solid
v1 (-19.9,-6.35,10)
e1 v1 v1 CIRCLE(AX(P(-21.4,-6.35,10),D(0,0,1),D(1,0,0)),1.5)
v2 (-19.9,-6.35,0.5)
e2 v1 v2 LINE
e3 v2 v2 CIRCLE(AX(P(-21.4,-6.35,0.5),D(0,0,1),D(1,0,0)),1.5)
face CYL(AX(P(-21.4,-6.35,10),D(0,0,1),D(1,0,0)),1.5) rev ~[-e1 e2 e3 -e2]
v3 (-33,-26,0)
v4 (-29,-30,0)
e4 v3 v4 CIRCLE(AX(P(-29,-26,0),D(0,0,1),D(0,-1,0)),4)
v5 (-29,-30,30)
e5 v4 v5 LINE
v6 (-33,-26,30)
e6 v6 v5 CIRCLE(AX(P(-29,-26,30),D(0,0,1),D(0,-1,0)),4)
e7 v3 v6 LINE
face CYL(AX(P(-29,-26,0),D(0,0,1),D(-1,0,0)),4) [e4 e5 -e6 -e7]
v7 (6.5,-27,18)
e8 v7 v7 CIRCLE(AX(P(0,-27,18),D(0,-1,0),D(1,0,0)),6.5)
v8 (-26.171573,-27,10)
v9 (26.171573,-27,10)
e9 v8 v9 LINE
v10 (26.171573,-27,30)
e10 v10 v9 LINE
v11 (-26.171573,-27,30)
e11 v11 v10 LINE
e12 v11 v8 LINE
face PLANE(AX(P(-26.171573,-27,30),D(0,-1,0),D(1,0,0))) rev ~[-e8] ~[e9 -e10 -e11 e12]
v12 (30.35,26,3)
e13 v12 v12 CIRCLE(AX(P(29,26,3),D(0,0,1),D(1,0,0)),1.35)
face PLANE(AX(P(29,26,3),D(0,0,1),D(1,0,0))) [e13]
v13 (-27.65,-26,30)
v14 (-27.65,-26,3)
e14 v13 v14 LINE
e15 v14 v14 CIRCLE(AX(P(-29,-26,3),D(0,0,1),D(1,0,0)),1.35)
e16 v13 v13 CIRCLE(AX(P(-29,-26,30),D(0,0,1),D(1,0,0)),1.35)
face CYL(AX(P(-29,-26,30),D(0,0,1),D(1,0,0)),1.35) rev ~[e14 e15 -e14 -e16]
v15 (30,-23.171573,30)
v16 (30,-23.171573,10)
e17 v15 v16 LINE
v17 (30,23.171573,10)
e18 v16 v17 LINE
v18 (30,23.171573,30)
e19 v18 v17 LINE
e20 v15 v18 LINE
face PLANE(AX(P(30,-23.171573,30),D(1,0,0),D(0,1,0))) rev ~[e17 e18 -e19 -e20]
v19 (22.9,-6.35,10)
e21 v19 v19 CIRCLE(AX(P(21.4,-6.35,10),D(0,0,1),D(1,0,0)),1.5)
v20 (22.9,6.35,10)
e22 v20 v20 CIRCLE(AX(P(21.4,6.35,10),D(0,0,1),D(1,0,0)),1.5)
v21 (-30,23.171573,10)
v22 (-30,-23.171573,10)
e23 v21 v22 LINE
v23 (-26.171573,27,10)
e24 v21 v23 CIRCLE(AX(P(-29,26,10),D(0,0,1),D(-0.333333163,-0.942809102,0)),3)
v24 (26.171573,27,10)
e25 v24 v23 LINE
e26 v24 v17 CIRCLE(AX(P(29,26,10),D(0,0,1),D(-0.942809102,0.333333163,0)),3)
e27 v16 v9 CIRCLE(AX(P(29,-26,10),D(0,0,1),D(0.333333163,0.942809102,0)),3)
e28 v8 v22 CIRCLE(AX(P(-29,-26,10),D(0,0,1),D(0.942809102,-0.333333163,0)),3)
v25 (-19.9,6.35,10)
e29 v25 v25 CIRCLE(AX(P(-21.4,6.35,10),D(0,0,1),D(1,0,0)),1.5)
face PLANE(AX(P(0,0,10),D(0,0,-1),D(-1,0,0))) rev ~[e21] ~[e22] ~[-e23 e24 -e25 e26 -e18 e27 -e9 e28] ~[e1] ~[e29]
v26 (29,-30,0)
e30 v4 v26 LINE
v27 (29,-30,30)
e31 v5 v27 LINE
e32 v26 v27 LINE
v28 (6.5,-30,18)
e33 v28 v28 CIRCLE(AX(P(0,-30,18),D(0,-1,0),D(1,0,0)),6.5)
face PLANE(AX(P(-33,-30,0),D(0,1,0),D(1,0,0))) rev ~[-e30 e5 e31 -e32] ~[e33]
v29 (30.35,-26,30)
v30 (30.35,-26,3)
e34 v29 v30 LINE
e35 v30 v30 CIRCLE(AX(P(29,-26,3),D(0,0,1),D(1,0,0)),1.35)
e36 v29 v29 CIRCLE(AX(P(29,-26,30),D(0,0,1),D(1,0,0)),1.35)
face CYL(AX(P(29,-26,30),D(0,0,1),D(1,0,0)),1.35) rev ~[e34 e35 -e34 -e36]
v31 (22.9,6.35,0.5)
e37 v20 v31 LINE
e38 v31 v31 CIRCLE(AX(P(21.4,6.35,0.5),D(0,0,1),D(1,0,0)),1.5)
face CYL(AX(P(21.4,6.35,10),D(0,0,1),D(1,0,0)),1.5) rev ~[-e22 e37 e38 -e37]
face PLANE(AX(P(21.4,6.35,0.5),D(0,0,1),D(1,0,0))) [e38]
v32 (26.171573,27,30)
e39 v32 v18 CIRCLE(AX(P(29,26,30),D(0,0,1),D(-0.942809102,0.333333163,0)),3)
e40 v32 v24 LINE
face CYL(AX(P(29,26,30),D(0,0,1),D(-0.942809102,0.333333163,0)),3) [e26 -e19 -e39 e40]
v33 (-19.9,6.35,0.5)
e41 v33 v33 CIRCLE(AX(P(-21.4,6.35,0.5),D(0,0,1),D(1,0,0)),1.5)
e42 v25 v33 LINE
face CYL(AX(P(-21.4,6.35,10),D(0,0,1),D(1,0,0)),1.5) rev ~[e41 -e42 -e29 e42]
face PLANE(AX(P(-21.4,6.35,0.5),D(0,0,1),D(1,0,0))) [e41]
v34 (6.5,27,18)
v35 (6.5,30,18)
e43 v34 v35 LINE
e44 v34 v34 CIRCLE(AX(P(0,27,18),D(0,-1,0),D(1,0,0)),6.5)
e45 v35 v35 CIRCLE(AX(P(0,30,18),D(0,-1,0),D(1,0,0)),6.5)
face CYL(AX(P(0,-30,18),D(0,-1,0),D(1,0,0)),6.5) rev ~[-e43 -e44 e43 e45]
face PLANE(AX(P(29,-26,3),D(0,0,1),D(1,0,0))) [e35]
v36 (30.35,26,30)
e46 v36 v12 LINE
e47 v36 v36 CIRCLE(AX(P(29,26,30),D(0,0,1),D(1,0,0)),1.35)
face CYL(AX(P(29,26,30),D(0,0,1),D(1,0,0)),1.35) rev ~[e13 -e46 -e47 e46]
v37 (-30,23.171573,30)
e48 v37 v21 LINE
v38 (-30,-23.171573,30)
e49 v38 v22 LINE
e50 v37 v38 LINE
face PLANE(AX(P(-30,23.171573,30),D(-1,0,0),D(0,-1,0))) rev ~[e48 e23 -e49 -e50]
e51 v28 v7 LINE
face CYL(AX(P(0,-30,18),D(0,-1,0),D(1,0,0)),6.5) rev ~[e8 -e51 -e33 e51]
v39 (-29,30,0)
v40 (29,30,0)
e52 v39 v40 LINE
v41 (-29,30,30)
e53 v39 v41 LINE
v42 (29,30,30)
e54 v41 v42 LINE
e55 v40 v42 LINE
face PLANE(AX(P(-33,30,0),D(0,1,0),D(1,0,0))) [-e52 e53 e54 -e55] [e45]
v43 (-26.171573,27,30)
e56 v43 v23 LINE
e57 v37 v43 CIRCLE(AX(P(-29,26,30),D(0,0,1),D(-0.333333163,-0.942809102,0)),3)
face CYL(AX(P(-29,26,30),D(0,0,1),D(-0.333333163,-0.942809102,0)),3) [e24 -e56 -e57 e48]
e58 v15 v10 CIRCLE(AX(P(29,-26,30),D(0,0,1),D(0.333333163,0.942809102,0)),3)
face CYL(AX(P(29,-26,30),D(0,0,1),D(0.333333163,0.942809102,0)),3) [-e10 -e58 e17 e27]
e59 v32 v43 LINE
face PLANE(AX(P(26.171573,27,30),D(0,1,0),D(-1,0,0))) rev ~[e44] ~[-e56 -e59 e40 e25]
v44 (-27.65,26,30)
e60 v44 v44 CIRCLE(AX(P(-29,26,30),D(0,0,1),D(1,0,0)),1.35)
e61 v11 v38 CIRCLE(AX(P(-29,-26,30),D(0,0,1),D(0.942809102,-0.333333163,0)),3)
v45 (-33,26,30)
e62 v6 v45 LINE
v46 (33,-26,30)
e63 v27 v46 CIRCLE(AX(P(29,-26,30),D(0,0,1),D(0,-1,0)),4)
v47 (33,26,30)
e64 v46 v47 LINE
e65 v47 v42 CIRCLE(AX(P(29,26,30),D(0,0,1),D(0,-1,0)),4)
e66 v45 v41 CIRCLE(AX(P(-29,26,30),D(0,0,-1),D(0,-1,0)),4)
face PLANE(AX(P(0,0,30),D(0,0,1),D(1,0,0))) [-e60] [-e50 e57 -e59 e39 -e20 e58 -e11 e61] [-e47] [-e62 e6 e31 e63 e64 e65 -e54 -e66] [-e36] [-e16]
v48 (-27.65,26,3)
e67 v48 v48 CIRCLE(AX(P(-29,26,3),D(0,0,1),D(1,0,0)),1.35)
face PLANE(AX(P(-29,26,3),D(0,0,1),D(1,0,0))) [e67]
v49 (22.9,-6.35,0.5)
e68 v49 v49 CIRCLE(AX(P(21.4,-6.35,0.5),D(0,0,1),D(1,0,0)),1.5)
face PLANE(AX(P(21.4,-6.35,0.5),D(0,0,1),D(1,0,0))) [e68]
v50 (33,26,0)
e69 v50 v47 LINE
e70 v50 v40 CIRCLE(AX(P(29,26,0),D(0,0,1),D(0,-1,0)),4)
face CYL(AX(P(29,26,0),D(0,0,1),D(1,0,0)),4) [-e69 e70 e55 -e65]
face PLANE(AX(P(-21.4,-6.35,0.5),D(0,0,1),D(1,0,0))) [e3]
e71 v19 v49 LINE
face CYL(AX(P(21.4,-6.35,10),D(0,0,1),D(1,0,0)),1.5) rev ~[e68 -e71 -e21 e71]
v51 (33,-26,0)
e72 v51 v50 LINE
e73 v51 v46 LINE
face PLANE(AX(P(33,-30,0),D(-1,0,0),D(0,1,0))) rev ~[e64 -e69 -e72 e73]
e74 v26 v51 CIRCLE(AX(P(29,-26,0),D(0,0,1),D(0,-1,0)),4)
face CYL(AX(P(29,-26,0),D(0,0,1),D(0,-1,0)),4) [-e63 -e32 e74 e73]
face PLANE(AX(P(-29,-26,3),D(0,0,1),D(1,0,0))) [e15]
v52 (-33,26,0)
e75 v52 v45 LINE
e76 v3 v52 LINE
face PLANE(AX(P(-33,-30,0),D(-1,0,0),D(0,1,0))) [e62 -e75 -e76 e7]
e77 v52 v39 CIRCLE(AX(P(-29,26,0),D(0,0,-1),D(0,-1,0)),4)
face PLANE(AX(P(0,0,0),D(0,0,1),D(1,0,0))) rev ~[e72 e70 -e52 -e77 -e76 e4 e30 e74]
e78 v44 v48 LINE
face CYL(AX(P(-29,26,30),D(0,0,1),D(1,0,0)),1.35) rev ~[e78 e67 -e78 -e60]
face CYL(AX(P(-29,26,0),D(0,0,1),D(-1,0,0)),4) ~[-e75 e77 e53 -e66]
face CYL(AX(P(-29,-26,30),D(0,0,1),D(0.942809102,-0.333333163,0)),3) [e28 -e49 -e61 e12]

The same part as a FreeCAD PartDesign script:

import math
import FreeCAD as App
import Part
import Sketcher

V = App.Vector


def edges_at(feature, points):
    """Names of the edges that pass closest to the given points."""
    edges = feature.Shape.Edges
    near = lambda p: min(range(len(edges)), key=lambda i: edges[i].distToShape(Part.Vertex(*p))[0])
    return sorted({f"Edge{near(p) + 1}" for p in points})


def add_polygon(sketch, points):
    """Adds a closed chain of lines whose ends are joined by coincident constraints."""
    first, n = sketch.GeometryCount, len(points)
    for a, b in zip(points, points[1:] + points[:1]):
        sketch.addGeometry(Part.LineSegment(App.Vector(*a, 0), App.Vector(*b, 0)), False)
    for i in range(n):
        sketch.addConstraint(Sketcher.Constraint("Coincident", first + i, 2, first + (i + 1) % n, 1))

doc = App.newDocument("Part")
body = doc.addObject("PartDesign::Body", "Body")

sketch1 = body.newObject("Sketcher::SketchObject", "Sketch")
sketch1.AttachmentSupport = (doc.getObject("XY_Plane"), [""])
sketch1.MapMode = "FlatFace"
add_polygon(sketch1, [(-33, 30), (-33, -30), (33, -30), (33, 30)])
sketch1.addConstraint(Sketcher.Constraint("Vertical", 0))
sketch1.addConstraint(Sketcher.Constraint("Horizontal", 1))
sketch1.addConstraint(Sketcher.Constraint("Vertical", 2))
sketch1.addConstraint(Sketcher.Constraint("Horizontal", 3))
sketch1.addConstraint(Sketcher.Constraint("Symmetric", 0, 2, 2, 2, -1, 1))
sketch1.addConstraint(Sketcher.Constraint("DistanceX", 1, 1, 1, 2, 66.0))
sketch1.addConstraint(Sketcher.Constraint("DistanceY", 0, 2, 0, 1, 60.0))
pad1 = body.newObject("PartDesign::Pad", "Pad")
pad1.Profile = sketch1
pad1.Length = 30
doc.recompute()

fillet = body.newObject("PartDesign::Fillet", "Fillet")
fillet.Base = (pad1, edges_at(pad1, [
    (-33, -30, 15),
    (33, -30, 15),
    (33, 30, 15),
    (-33, 30, 15),
]))
fillet.Radius = 4

sketch2 = body.newObject("Sketcher::SketchObject", "Sketch001")
sketch2.AttachmentSupport = (doc.getObject("XY_Plane"), [""])
sketch2.MapMode = "FlatFace"
sketch2.AttachmentOffset = App.Placement(V(0, 0, 30), App.Rotation())
sketch2.addGeometry(Part.Circle(V(-29, 26, 0), V(0, 0, 1), 1.4), False)
sketch2.addGeometry(Part.Circle(V(29, 26, 0), V(0, 0, 1), 1.4), False)
sketch2.addGeometry(Part.Circle(V(29, -26, 0), V(0, 0, 1), 1.4), False)
sketch2.addGeometry(Part.Circle(V(-29, -26, 0), V(0, 0, 1), 1.4), False)
sketch2.addConstraint(Sketcher.Constraint("Equal", 0, 1))
sketch2.addConstraint(Sketcher.Constraint("Equal", 1, 2))
sketch2.addConstraint(Sketcher.Constraint("Equal", 2, 3))
sketch2.addConstraint(Sketcher.Constraint("Symmetric", 0, 3, 2, 3, -1, 1))
sketch2.addConstraint(Sketcher.Constraint("Symmetric", 1, 3, 3, 3, -1, 1))
sketch2.addConstraint(Sketcher.Constraint("Symmetric", 0, 3, 1, 3, -2))
sketch2.addConstraint(Sketcher.Constraint("Diameter", 0, 2.7))
sketch2.addConstraint(Sketcher.Constraint("DistanceX", 0, 3, -1, 1, 29.0))
sketch2.addConstraint(Sketcher.Constraint("DistanceY", -1, 1, 0, 3, 26.0))
pocket1 = body.newObject("PartDesign::Pocket", "Pocket")
pocket1.Profile = sketch2
pocket1.Length = 27

sketch3 = body.newObject("Sketcher::SketchObject", "Sketch002")
sketch3.AttachmentSupport = (doc.getObject("XY_Plane"), [""])
sketch3.MapMode = "FlatFace"
sketch3.AttachmentOffset = App.Placement(V(0, 0, 30), App.Rotation())
sketch3.addGeometry(Part.ArcOfCircle(Part.Circle(V(-29, 26, 0), V(0, 0, 1), 3), math.radians(-109), math.radians(19)), False)
sketch3.addGeometry(Part.LineSegment(V(-30, 23.2, 0), V(-30, -23.2, 0)), False)
sketch3.addGeometry(Part.ArcOfCircle(Part.Circle(V(-29, -26, 0), V(0, 0, 1), 3), math.radians(-19), math.radians(109)), False)
sketch3.addGeometry(Part.LineSegment(V(-26.2, -27, 0), V(26.2, -27, 0)), False)
sketch3.addGeometry(Part.ArcOfCircle(Part.Circle(V(29, -26, 0), V(0, 0, 1), 3), math.radians(71), math.radians(199)), False)
sketch3.addGeometry(Part.LineSegment(V(30, -23.2, 0), V(30, 23.2, 0)), False)
sketch3.addGeometry(Part.ArcOfCircle(Part.Circle(V(29, 26, 0), V(0, 0, 1), 3), math.radians(161), math.radians(289)), False)
sketch3.addGeometry(Part.LineSegment(V(26.2, 27, 0), V(-26.2, 27, 0)), False)
sketch3.addConstraint(Sketcher.Constraint("Coincident", 0, 1, 1, 1))
sketch3.addConstraint(Sketcher.Constraint("Coincident", 1, 2, 2, 2))
sketch3.addConstraint(Sketcher.Constraint("Coincident", 2, 1, 3, 1))
sketch3.addConstraint(Sketcher.Constraint("Coincident", 3, 2, 4, 2))
sketch3.addConstraint(Sketcher.Constraint("Coincident", 4, 1, 5, 1))
sketch3.addConstraint(Sketcher.Constraint("Coincident", 5, 2, 6, 2))
sketch3.addConstraint(Sketcher.Constraint("Coincident", 6, 1, 7, 1))
sketch3.addConstraint(Sketcher.Constraint("Coincident", 7, 2, 0, 2))
sketch3.addConstraint(Sketcher.Constraint("Vertical", 1))
sketch3.addConstraint(Sketcher.Constraint("Horizontal", 3))
sketch3.addConstraint(Sketcher.Constraint("Vertical", 5))
sketch3.addConstraint(Sketcher.Constraint("Horizontal", 7))
sketch3.addConstraint(Sketcher.Constraint("Equal", 0, 2))
sketch3.addConstraint(Sketcher.Constraint("Equal", 2, 4))
sketch3.addConstraint(Sketcher.Constraint("Equal", 4, 6))
sketch3.addConstraint(Sketcher.Constraint("Symmetric", 0, 3, 4, 3, -1, 1))
sketch3.addConstraint(Sketcher.Constraint("Symmetric", 2, 3, 6, 3, -1, 1))
sketch3.addConstraint(Sketcher.Constraint("Symmetric", 2, 3, 4, 3, -2))
sketch3.addConstraint(Sketcher.Constraint("Horizontal", 1, 2, 4, 1))
sketch3.addConstraint(Sketcher.Constraint("Vertical", 3, 2, 6, 1))
sketch3.addConstraint(Sketcher.Constraint("Radius", 0, 3.0))
sketch3.addConstraint(Sketcher.Constraint("DistanceX", 0, 3, -1, 1, 29.0))
sketch3.addConstraint(Sketcher.Constraint("DistanceY", -1, 1, 0, 3, 26.0))
sketch3.addConstraint(Sketcher.Constraint("DistanceX", 0, 1, -1, 1, 30.0))
sketch3.addConstraint(Sketcher.Constraint("DistanceY", 2, 1, -1, 1, 27.0))
pocket2 = body.newObject("PartDesign::Pocket", "Pocket001")
pocket2.Profile = sketch3
pocket2.Length = 20

sketch4 = body.newObject("Sketcher::SketchObject", "Sketch003")
sketch4.AttachmentSupport = (doc.getObject("XY_Plane"), [""])
sketch4.MapMode = "FlatFace"
sketch4.AttachmentOffset = App.Placement(V(0, 0, 10), App.Rotation())
sketch4.addGeometry(Part.Circle(V(-21.4, 6.3, 0), V(0, 0, 1), 1.5), False)
sketch4.addGeometry(Part.Circle(V(21.4, 6.3, 0), V(0, 0, 1), 1.5), False)
sketch4.addGeometry(Part.Circle(V(21.4, -6.3, 0), V(0, 0, 1), 1.5), False)
sketch4.addGeometry(Part.Circle(V(-21.4, -6.3, 0), V(0, 0, 1), 1.5), False)
sketch4.addConstraint(Sketcher.Constraint("Equal", 0, 1))
sketch4.addConstraint(Sketcher.Constraint("Equal", 1, 2))
sketch4.addConstraint(Sketcher.Constraint("Equal", 2, 3))
sketch4.addConstraint(Sketcher.Constraint("Symmetric", 0, 3, 2, 3, -1, 1))
sketch4.addConstraint(Sketcher.Constraint("Symmetric", 1, 3, 3, 3, -1, 1))
sketch4.addConstraint(Sketcher.Constraint("Symmetric", 0, 3, 1, 3, -2))
sketch4.addConstraint(Sketcher.Constraint("Diameter", 0, 3.0))
sketch4.addConstraint(Sketcher.Constraint("DistanceX", 0, 3, -1, 1, 21.4))
sketch4.addConstraint(Sketcher.Constraint("DistanceY", 2, 3, 1, 3, 12.7))
pocket3 = body.newObject("PartDesign::Pocket", "Pocket002")
pocket3.Profile = sketch4
pocket3.Length = 9.5

sketch5 = body.newObject("Sketcher::SketchObject", "Sketch004")
sketch5.AttachmentSupport = (doc.getObject("XZ_Plane"), [""])
sketch5.MapMode = "FlatFace"
sketch5.AttachmentOffset = App.Placement(V(0, 0, 30), App.Rotation())
sketch5.addGeometry(Part.Circle(V(0, 18, 0), V(0, 0, 1), 6), False)
sketch5.addConstraint(Sketcher.Constraint("PointOnObject", 0, 3, -2))
sketch5.addConstraint(Sketcher.Constraint("Diameter", 0, 13.0))
sketch5.addConstraint(Sketcher.Constraint("DistanceY", -1, 1, 0, 3, 18.0))
pocket4 = body.newObject("PartDesign::Pocket", "Pocket003")
pocket4.Profile = sketch5
pocket4.Type = "ThroughAll"

doc.recompute()
